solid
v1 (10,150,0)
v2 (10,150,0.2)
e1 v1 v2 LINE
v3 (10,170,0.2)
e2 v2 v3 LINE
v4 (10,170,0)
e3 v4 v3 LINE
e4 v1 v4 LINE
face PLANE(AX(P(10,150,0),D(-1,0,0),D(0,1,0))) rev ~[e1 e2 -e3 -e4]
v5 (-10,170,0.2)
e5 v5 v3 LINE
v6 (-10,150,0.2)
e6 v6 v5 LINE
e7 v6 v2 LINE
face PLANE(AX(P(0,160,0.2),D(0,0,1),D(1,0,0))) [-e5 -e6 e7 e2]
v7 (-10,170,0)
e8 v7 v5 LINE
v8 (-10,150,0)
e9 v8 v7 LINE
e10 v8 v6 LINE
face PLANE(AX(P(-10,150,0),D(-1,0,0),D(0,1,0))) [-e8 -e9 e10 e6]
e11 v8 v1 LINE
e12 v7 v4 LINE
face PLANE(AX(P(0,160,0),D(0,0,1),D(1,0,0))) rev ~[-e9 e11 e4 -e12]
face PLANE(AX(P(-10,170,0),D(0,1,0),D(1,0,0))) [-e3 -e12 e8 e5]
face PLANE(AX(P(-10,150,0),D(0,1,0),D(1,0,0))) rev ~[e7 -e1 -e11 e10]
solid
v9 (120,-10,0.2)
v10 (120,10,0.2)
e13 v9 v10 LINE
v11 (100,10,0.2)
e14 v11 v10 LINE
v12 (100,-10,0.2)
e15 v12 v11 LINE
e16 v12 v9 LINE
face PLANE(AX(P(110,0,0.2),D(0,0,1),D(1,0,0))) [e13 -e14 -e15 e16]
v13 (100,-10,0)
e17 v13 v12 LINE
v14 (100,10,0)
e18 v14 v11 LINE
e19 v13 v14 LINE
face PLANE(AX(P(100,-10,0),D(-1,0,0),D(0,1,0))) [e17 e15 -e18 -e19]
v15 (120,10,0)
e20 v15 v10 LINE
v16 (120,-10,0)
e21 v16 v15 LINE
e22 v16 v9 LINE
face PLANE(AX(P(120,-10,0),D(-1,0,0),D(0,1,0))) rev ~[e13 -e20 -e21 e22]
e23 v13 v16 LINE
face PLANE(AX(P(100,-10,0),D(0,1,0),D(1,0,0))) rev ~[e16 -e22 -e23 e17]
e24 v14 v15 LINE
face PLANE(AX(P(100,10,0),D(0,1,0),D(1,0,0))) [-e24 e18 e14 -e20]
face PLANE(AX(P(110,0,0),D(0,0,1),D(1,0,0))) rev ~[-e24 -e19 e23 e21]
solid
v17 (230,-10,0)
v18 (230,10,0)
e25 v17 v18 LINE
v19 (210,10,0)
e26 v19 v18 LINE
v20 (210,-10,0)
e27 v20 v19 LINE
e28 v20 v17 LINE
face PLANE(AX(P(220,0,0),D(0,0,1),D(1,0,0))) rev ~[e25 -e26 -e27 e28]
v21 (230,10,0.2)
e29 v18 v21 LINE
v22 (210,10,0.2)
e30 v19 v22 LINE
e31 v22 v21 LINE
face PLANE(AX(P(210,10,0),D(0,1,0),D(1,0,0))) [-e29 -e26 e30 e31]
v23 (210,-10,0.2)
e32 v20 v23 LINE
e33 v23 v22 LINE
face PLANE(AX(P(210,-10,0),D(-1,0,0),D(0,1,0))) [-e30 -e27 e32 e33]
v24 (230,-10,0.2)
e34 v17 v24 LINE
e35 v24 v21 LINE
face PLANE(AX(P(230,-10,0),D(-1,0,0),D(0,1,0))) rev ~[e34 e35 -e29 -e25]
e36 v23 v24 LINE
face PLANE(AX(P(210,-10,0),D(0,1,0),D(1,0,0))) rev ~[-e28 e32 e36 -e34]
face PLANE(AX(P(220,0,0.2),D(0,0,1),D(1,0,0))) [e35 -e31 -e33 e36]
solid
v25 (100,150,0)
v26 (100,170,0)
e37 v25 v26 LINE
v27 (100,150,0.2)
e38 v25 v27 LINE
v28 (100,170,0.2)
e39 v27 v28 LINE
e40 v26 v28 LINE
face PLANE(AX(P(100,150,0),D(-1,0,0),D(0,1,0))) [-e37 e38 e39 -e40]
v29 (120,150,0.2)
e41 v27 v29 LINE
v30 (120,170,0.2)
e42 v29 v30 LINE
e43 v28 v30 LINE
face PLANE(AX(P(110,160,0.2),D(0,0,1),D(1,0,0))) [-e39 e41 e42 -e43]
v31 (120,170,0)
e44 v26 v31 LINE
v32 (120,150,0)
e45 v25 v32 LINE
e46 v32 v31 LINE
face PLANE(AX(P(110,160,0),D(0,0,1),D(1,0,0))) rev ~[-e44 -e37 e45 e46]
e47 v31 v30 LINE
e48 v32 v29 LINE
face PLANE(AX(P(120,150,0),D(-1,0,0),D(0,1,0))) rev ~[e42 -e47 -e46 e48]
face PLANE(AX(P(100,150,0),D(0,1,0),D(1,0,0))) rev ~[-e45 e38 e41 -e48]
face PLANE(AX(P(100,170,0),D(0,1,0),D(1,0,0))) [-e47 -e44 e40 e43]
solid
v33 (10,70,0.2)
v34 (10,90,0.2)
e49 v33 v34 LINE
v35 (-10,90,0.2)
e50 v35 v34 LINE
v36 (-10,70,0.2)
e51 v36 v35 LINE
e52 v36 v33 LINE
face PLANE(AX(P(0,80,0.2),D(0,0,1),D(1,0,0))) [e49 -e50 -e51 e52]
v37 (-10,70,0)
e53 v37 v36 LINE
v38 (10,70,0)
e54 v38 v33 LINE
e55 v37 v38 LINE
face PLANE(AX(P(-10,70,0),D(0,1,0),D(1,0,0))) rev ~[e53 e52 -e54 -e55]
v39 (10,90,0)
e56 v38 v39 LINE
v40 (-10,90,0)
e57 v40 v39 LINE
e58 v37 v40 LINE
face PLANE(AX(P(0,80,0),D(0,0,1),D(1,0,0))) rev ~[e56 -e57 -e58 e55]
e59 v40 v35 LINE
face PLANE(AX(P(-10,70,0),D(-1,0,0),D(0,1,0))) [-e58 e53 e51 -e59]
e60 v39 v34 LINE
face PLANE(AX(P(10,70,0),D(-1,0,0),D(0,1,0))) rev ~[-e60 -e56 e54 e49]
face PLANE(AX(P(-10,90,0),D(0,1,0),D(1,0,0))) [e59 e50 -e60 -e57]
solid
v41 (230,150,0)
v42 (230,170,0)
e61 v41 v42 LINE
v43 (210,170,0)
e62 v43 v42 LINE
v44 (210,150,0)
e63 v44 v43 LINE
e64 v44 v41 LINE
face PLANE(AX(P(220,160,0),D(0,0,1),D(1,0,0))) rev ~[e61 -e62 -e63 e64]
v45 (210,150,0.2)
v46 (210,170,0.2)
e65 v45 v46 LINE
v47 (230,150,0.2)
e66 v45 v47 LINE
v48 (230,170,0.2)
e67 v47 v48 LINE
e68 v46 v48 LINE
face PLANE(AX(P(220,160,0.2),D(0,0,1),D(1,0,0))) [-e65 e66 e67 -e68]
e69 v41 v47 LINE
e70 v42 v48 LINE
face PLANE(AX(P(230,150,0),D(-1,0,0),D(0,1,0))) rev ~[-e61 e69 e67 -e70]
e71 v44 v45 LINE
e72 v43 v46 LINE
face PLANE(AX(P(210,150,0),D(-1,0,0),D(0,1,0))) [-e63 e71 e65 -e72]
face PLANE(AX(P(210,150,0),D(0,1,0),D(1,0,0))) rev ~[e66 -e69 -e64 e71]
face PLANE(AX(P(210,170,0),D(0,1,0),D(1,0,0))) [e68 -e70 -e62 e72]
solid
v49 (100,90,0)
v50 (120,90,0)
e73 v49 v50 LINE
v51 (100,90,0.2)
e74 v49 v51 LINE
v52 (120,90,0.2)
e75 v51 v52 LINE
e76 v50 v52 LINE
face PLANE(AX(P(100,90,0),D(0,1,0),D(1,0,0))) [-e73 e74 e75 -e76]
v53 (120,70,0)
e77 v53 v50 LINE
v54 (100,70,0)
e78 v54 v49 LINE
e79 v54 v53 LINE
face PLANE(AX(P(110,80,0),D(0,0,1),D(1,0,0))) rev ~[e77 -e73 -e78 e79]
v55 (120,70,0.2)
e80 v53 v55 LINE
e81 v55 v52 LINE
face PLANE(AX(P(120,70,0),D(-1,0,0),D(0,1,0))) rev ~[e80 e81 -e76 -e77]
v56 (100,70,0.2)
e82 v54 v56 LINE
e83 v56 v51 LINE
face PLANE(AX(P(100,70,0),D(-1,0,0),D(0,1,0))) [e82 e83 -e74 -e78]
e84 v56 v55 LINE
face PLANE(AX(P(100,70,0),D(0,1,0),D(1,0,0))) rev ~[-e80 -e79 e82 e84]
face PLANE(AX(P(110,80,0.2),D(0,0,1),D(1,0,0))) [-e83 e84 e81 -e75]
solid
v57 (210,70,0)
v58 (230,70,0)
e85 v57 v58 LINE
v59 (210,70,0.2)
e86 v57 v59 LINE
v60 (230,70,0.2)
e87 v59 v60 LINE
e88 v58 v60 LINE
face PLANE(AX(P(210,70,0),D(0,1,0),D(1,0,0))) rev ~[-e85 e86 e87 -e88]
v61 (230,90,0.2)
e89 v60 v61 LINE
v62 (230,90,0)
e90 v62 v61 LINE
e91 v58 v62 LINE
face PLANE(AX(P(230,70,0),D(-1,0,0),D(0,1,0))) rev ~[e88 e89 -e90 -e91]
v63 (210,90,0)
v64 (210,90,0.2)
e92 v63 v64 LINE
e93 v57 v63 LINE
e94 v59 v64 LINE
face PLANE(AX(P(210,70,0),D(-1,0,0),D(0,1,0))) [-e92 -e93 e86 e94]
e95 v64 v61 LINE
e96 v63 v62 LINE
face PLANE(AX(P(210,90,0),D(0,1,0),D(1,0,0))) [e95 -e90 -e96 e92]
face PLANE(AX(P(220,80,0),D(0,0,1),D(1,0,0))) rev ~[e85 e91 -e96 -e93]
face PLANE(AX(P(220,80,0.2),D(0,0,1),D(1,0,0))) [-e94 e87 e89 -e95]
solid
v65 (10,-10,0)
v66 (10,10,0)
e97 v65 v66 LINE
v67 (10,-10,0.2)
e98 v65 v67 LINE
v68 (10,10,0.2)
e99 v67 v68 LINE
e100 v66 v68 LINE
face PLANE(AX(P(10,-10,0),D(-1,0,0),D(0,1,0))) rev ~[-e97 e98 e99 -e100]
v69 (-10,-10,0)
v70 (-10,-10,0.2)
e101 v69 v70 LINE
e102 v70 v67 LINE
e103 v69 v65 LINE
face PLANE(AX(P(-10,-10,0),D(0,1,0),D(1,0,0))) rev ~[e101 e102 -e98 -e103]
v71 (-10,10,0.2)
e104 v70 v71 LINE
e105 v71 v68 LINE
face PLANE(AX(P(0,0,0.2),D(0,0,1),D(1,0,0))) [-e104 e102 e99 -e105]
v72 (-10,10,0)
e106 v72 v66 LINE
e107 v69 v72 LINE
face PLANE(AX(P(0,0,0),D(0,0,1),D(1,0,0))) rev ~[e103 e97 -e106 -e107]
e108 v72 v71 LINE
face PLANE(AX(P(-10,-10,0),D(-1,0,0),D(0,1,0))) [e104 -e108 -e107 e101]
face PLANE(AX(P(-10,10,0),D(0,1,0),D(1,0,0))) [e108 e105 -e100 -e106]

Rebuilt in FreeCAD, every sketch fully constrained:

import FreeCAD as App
import Part
import Sketcher

V = App.Vector


def add_polygon(sketch, points):
    """Adds a closed chain of lines whose ends are joined by coincident constraints."""
    first, n = sketch.GeometryCount, len(points)
    for a, b in zip(points, points[1:] + points[:1]):
        sketch.addGeometry(Part.LineSegment(App.Vector(*a, 0), App.Vector(*b, 0)), False)
    for i in range(n):
        sketch.addConstraint(Sketcher.Constraint("Coincident", first + i, 2, first + (i + 1) % n, 1))

doc = App.newDocument("Part")
body = doc.addObject("PartDesign::Body", "Body")
body.AllowCompound = True

# Sketch on XY plane
sketch1 = body.newObject("Sketcher::SketchObject", "Sketch")
sketch1.AttachmentSupport = (doc.getObject("XY_Plane"), [""])
sketch1.MapMode = "FlatFace"
add_polygon(sketch1, [(-10, 10), (-10, -10), (10, -10), (10, 10)])  # lines 0-3
add_polygon(sketch1, [(-10, 90), (-10, 70), (10, 70), (10, 90)])  # lines 4-7
add_polygon(sketch1, [(-10, 170), (-10, 150), (10, 150), (10, 170)])  # lines 8-11
add_polygon(sketch1, [(100, 10), (100, -10), (120, -10), (120, 10)])  # lines 12-15
add_polygon(sketch1, [(100, 90), (100, 70), (120, 70), (120, 90)])  # lines 16-19
add_polygon(sketch1, [(100, 170), (100, 150), (120, 150), (120, 170)])  # lines 20-23
add_polygon(sketch1, [(210, 10), (210, -10), (230, -10), (230, 10)])  # lines 24-27
add_polygon(sketch1, [(210, 90), (210, 70), (230, 70), (230, 90)])  # lines 28-31
add_polygon(sketch1, [(210, 170), (210, 150), (230, 150), (230, 170)])  # lines 32-35
sketch1.addConstraint([
    Sketcher.Constraint("Vertical", 0),
    Sketcher.Constraint("Horizontal", 1),
    Sketcher.Constraint("Vertical", 2),
    Sketcher.Constraint("Horizontal", 3),
    Sketcher.Constraint("Vertical", 4),
    Sketcher.Constraint("Horizontal", 5),
    Sketcher.Constraint("Vertical", 6),
    Sketcher.Constraint("Horizontal", 7),
    Sketcher.Constraint("Vertical", 8),
    Sketcher.Constraint("Horizontal", 9),
    Sketcher.Constraint("Vertical", 10),
    Sketcher.Constraint("Horizontal", 11),
    Sketcher.Constraint("Vertical", 12),
    Sketcher.Constraint("Horizontal", 13),
    Sketcher.Constraint("Vertical", 14),
    Sketcher.Constraint("Horizontal", 15),
    Sketcher.Constraint("Vertical", 16),
    Sketcher.Constraint("Horizontal", 17),
    Sketcher.Constraint("Vertical", 18),
    Sketcher.Constraint("Horizontal", 19),
    Sketcher.Constraint("Vertical", 20),
    Sketcher.Constraint("Horizontal", 21),
    Sketcher.Constraint("Vertical", 22),
    Sketcher.Constraint("Horizontal", 23),
    Sketcher.Constraint("Vertical", 24),
    Sketcher.Constraint("Horizontal", 25),
    Sketcher.Constraint("Vertical", 26),
    Sketcher.Constraint("Horizontal", 27),
    Sketcher.Constraint("Vertical", 28),
    Sketcher.Constraint("Horizontal", 29),
    Sketcher.Constraint("Vertical", 30),
    Sketcher.Constraint("Horizontal", 31),
    Sketcher.Constraint("Vertical", 32),
    Sketcher.Constraint("Horizontal", 33),
    Sketcher.Constraint("Vertical", 34),
    Sketcher.Constraint("Horizontal", 35),
    Sketcher.Constraint("Symmetric", 0, 2, 2, 2, -1, 1),
    Sketcher.Constraint("Horizontal", 1, 2, 12, 2),
    Sketcher.Constraint("Horizontal", 3, 2, 14, 2),
    Sketcher.Constraint("Horizontal", 5, 2, 16, 2),
    Sketcher.Constraint("Horizontal", 7, 2, 18, 2),
    Sketcher.Constraint("Horizontal", 9, 2, 20, 2),
    Sketcher.Constraint("Horizontal", 11, 2, 22, 2),
    Sketcher.Constraint("Horizontal", 13, 2, 24, 2),
    Sketcher.Constraint("Horizontal", 15, 2, 26, 2),
    Sketcher.Constraint("Horizontal", 17, 2, 28, 2),
    Sketcher.Constraint("Horizontal", 19, 2, 30, 2),
    Sketcher.Constraint("Horizontal", 21, 2, 32, 2),
    Sketcher.Constraint("Horizontal", 23, 2, 34, 2),
    Sketcher.Constraint("Vertical", 3, 2, 4, 2),
    Sketcher.Constraint("Vertical", 2, 2, 5, 2),
    Sketcher.Constraint("Vertical", 7, 2, 8, 2),
    Sketcher.Constraint("Vertical", 6, 2, 9, 2),
    Sketcher.Constraint("Vertical", 15, 2, 16, 2),
    Sketcher.Constraint("Vertical", 14, 2, 17, 2),
    Sketcher.Constraint("Vertical", 19, 2, 20, 2),
    Sketcher.Constraint("Vertical", 18, 2, 21, 2),
    Sketcher.Constraint("Vertical", 27, 2, 28, 2),
    Sketcher.Constraint("Vertical", 26, 2, 29, 2),
    Sketcher.Constraint("Vertical", 31, 2, 32, 2),
    Sketcher.Constraint("Vertical", 30, 2, 33, 2),
    Sketcher.Constraint("Equal", 11, 13),
    Sketcher.Constraint("Equal", 23, 25),
    Sketcher.Constraint("Equal", 35, 0),
    Sketcher.Constraint("Equal", 2, 4),
    Sketcher.Constraint("Equal", 6, 8),
    Sketcher.Constraint("DistanceX", 1, 1, 1, 2, 20.0),
    Sketcher.Constraint("DistanceY", -1, 1, 4, 2, 70.0),
    Sketcher.Constraint("DistanceY", -1, 1, 8, 2, 150.0),
    Sketcher.Constraint("DistanceX", -1, 1, 12, 2, 100.0),
    Sketcher.Constraint("DistanceX", -1, 1, 24, 2, 210.0),
])
pad1 = body.newObject("PartDesign::Pad", "Pad")
pad1.Profile = sketch1
pad1.Length = 0.2

doc.recompute()
